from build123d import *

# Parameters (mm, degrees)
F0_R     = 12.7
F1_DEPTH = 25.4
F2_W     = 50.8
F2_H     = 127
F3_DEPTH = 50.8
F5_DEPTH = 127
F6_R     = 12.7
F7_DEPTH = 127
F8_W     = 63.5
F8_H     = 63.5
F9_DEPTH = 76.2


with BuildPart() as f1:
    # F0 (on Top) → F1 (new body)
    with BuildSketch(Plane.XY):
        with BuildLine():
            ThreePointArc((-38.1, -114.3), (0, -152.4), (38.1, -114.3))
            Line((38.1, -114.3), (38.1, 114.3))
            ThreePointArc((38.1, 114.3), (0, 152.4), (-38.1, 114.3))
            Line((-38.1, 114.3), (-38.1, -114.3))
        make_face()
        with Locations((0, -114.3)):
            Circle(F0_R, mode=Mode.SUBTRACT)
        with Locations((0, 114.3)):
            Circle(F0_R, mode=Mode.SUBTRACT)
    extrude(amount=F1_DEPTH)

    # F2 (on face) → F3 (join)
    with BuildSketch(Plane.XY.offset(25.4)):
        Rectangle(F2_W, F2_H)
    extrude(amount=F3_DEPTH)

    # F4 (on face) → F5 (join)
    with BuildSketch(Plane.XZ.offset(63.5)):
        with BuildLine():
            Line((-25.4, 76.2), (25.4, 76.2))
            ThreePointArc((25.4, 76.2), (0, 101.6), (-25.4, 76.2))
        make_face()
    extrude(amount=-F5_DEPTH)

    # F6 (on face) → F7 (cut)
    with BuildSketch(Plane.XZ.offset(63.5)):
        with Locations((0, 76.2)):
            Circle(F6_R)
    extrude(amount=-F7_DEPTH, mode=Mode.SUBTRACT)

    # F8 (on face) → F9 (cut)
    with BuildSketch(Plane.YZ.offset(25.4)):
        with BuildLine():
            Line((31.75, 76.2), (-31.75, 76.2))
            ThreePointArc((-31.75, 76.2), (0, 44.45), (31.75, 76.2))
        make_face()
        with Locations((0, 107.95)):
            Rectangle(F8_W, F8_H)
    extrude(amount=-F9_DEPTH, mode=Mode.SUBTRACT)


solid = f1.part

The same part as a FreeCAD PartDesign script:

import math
import FreeCAD as App
import Part
import Sketcher

V = App.Vector
Q = App.Units.Quantity

doc = App.newDocument("Part")
body = doc.addObject("PartDesign::Body", "Body")

sketch1 = body.newObject("Sketcher::SketchObject", "Sketch")
sketch1.AttachmentSupport = (doc.getObject("XY_Plane"), [""])
sketch1.MapMode = "FlatFace"
sketch1.addGeometry([
    Part.ArcOfCircle(Part.Circle(V(0, -114, 0), V(0, 0, 1), 38), math.radians(180), math.radians(360)),
    Part.LineSegment(V(38, -114, 0), V(38, 114, 0)),
    Part.ArcOfCircle(Part.Circle(V(0, 114, 0), V(0, 0, 1), 38), math.radians(0), math.radians(180)),
    Part.LineSegment(V(-38, 114, 0), V(-38, -114, 0)),
    Part.Circle(V(0, -114, 0), V(0, 0, 1), 13),
    Part.Circle(V(0, 114, 0), V(0, 0, 1), 13),
], False)
sketch1.addConstraint([
    Sketcher.Constraint("Tangent", 0, 2, 1, 1),
    Sketcher.Constraint("Tangent", 1, 2, 2, 1),
    Sketcher.Constraint("Tangent", 2, 2, 3, 1),
    Sketcher.Constraint("Tangent", 3, 2, 0, 1),
    Sketcher.Constraint("Vertical", 1),
    Sketcher.Constraint("Vertical", 3),
    Sketcher.Constraint("Coincident", 4, 3, 0, 3),
    Sketcher.Constraint("Coincident", 5, 3, 2, 3),
    Sketcher.Constraint("Equal", 4, 5),
    Sketcher.Constraint("Symmetric", 0, 3, 2, 3, -1, 1),
    Sketcher.Constraint("Diameter", 4, Q("1 in")),
    Sketcher.Constraint("Radius", 0, Q("1.5 in")),
    Sketcher.Constraint("DistanceY", 1, 1, 1, 2, Q("9 in")),
])
pad1 = body.newObject("PartDesign::Pad", "Pad")
pad1.Profile = sketch1
pad1.Length = Q("1 in")

sketch2 = body.newObject("Sketcher::SketchObject", "Sketch001")
sketch2.AttachmentSupport = (doc.getObject("XY_Plane"), [""])
sketch2.MapMode = "FlatFace"
sketch2.AttachmentOffset = App.Placement(V(0, 0, 1 * 25.4), App.Rotation())
sketch2.addGeometry([
    Part.LineSegment(V(-25, 64, 0), V(-25, -64, 0)),
    Part.LineSegment(V(-25, -64, 0), V(25, -64, 0)),
    Part.LineSegment(V(25, -64, 0), V(25, 64, 0)),
    Part.LineSegment(V(25, 64, 0), V(-25, 64, 0)),
], False)
sketch2.addConstraint([
    Sketcher.Constraint("Coincident", 0, 2, 1, 1),
    Sketcher.Constraint("Coincident", 1, 2, 2, 1),
    Sketcher.Constraint("Coincident", 2, 2, 3, 1),
    Sketcher.Constraint("Coincident", 3, 2, 0, 1),
    Sketcher.Constraint("Vertical", 0),
    Sketcher.Constraint("Horizontal", 1),
    Sketcher.Constraint("Vertical", 2),
    Sketcher.Constraint("Horizontal", 3),
    Sketcher.Constraint("Symmetric", 0, 2, 2, 2, -1, 1),
    Sketcher.Constraint("DistanceX", 1, 1, 1, 2, Q("2 in")),
    Sketcher.Constraint("DistanceY", 0, 2, 0, 1, Q("5 in")),
])
pad2 = body.newObject("PartDesign::Pad", "Pad001")
pad2.Profile = sketch2
pad2.Length = Q("2 in")

sketch3 = body.newObject("Sketcher::SketchObject", "Sketch002")
sketch3.AttachmentSupport = (doc.getObject("XZ_Plane"), [""])
sketch3.MapMode = "FlatFace"
sketch3.AttachmentOffset = App.Placement(V(0, 0, 2.5 * 25.4), App.Rotation())
sketch3.addGeometry([
    Part.LineSegment(V(-25, 76, 0), V(25, 76, 0)),
    Part.ArcOfCircle(Part.Circle(V(0, 76, 0), V(0, 0, 1), 25), math.radians(0), math.radians(180)),
], False)
sketch3.addConstraint([
    Sketcher.Constraint("Coincident", 0, 1, 1, 2),
    Sketcher.Constraint("Coincident", 1, 1, 0, 2),
    Sketcher.Constraint("Horizontal", 0),
    Sketcher.Constraint("PointOnObject", 1, 3, -2),
    Sketcher.Constraint("Horizontal", 1, 3, 0, 1),
    Sketcher.Constraint("Radius", 1, Q("1 in")),
    Sketcher.Constraint("DistanceY", -1, 1, 1, 3, Q("3 in")),
])
pad3 = body.newObject("PartDesign::Pad", "Pad002")
pad3.Profile = sketch3
pad3.Length = Q("5 in")
pad3.Reversed = True

sketch4 = body.newObject("Sketcher::SketchObject", "Sketch003")
sketch4.AttachmentSupport = (doc.getObject("XZ_Plane"), [""])
sketch4.MapMode = "FlatFace"
sketch4.AttachmentOffset = App.Placement(V(0, 0, 2.5 * 25.4), App.Rotation())
sketch4.addGeometry(Part.Circle(V(0, 76, 0), V(0, 0, 1), 13), False)
sketch4.addConstraint([
    Sketcher.Constraint("PointOnObject", 0, 3, -2),
    Sketcher.Constraint("Diameter", 0, Q("1 in")),
    Sketcher.Constraint("DistanceY", -1, 1, 0, 3, Q("3 in")),
])
pocket1 = body.newObject("PartDesign::Pocket", "Pocket")
pocket1.Profile = sketch4
pocket1.Length = Q("5 in")

sketch5 = body.newObject("Sketcher::SketchObject", "Sketch004")
sketch5.AttachmentSupport = (doc.getObject("YZ_Plane"), [""])
sketch5.MapMode = "FlatFace"
sketch5.AttachmentOffset = App.Placement(V(0, 0, 1 * 25.4), App.Rotation())
sketch5.addGeometry([
    Part.ArcOfCircle(Part.Circle(V(0, 76, 0), V(0, 0, 1), 32), math.radians(180), math.radians(360)),
    Part.LineSegment(V(32, 76, 0), V(32, 140, 0)),
    Part.LineSegment(V(32, 140, 0), V(-32, 140, 0)),
    Part.LineSegment(V(-32, 140, 0), V(-32, 76, 0)),
], False)
sketch5.addConstraint([
    Sketcher.Constraint("Tangent", 0, 2, 1, 1),
    Sketcher.Constraint("Coincident", 1, 2, 2, 1),
    Sketcher.Constraint("Coincident", 2, 2, 3, 1),
    Sketcher.Constraint("Tangent", 3, 2, 0, 1),
    Sketcher.Constraint("Vertical", 1),
    Sketcher.Constraint("Horizontal", 2),
    Sketcher.Constraint("Vertical", 3),
    Sketcher.Constraint("PointOnObject", 0, 3, -2),
    Sketcher.Constraint("Equal", 2, 1),
    Sketcher.Constraint("Radius", 0, Q("1.25 in")),
    Sketcher.Constraint("DistanceY", -1, 1, 0, 3, Q("3 in")),
])
pocket2 = body.newObject("PartDesign::Pocket", "Pocket001")
pocket2.Profile = sketch5
pocket2.Length = Q("3 in")

doc.recompute()
